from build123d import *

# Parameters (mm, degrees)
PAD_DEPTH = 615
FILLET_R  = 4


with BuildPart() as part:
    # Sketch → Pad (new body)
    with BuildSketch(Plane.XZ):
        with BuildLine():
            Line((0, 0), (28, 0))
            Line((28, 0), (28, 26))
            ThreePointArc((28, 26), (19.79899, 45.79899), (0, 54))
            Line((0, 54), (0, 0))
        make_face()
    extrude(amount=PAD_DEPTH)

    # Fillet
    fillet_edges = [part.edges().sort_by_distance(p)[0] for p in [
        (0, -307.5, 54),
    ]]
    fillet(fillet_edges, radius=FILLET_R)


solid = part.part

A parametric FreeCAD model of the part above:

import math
import FreeCAD as App
import Part
import Sketcher
from FreeCAD import Vector


def edges_at(feature, points):
    """Names of the edges that pass closest to the given points."""
    edges = feature.Shape.Edges
    near = lambda p: min(range(len(edges)), key=lambda i: edges[i].distToShape(Part.Vertex(*p))[0])
    return sorted({f"Edge{near(p) + 1}" for p in points})

doc = App.newDocument("Part")
params = doc.addObject("Spreadsheet::Sheet", "Params")
for row, (alias, value) in enumerate([
    ("sketch1_radius", "28 mm"),
    ("sketch1_height", "26 mm"),
    ("pad1_length", "615 mm"),
    ("fillet_radius", "4 mm"),
], start=1):
    params.set(f"A{row}", alias)
    params.set(f"B{row}", "=" + value)
    params.setAlias(f"B{row}", alias)

body = doc.addObject("PartDesign::Body", "Body")

# Sketch on XZ plane
sketch1 = body.newObject("Sketcher::SketchObject", "Sketch")
sketch1.AttachmentSupport = (doc.getObject("XZ_Plane"), [""])
sketch1.MapMode = "FlatFace"
sketch1.addGeometry(Part.LineSegment(Vector(0, 0, 0), Vector(28, 0, 0)), False)
sketch1.addGeometry(Part.LineSegment(Vector(28, 0, 0), Vector(28, 26, 0)), False)
sketch1.addGeometry(Part.ArcOfCircle(Part.Circle(Vector(0, 26, 0), Vector(0, 0, 1), 28), math.radians(0), math.radians(90)), False)
sketch1.addGeometry(Part.LineSegment(Vector(0, 54, 0), Vector(0, 0, 0)), False)
sketch1.addConstraint(Sketcher.Constraint("Coincident", 0, 2, 1, 1))
sketch1.addConstraint(Sketcher.Constraint("Tangent", 1, 2, 2, 1))
sketch1.addConstraint(Sketcher.Constraint("Coincident", 2, 2, 3, 1))
sketch1.addConstraint(Sketcher.Constraint("Coincident", 3, 2, 0, 1))
sketch1.addConstraint(Sketcher.Constraint("Horizontal", 0))
sketch1.addConstraint(Sketcher.Constraint("Vertical", 1))
sketch1.addConstraint(Sketcher.Constraint("Vertical", 3))
sketch1.addConstraint(Sketcher.Constraint("Coincident", 3, 2, -1, 1))
sketch1.addConstraint(Sketcher.Constraint("PointOnObject", 2, 3, -2))
sketch1.addConstraint(Sketcher.Constraint("Radius", 2, 28.0))
sketch1.addConstraint(Sketcher.Constraint("DistanceY", 1, 1, 1, 2, 26.0))
sketch1.setExpression("Constraints[9]", "Params.sketch1_radius")
sketch1.setExpression("Constraints[10]", "Params.sketch1_height")
pad1 = body.newObject("PartDesign::Pad", "Pad")
pad1.Profile = sketch1
pad1.setExpression("Length", "Params.pad1_length")
doc.recompute()

fillet = body.newObject("PartDesign::Fillet", "Fillet")
fillet.Base = (pad1, edges_at(pad1, [(0, -307.5, 54)]))
fillet.setExpression("Radius", "Params.fillet_radius")

doc.recompute()
